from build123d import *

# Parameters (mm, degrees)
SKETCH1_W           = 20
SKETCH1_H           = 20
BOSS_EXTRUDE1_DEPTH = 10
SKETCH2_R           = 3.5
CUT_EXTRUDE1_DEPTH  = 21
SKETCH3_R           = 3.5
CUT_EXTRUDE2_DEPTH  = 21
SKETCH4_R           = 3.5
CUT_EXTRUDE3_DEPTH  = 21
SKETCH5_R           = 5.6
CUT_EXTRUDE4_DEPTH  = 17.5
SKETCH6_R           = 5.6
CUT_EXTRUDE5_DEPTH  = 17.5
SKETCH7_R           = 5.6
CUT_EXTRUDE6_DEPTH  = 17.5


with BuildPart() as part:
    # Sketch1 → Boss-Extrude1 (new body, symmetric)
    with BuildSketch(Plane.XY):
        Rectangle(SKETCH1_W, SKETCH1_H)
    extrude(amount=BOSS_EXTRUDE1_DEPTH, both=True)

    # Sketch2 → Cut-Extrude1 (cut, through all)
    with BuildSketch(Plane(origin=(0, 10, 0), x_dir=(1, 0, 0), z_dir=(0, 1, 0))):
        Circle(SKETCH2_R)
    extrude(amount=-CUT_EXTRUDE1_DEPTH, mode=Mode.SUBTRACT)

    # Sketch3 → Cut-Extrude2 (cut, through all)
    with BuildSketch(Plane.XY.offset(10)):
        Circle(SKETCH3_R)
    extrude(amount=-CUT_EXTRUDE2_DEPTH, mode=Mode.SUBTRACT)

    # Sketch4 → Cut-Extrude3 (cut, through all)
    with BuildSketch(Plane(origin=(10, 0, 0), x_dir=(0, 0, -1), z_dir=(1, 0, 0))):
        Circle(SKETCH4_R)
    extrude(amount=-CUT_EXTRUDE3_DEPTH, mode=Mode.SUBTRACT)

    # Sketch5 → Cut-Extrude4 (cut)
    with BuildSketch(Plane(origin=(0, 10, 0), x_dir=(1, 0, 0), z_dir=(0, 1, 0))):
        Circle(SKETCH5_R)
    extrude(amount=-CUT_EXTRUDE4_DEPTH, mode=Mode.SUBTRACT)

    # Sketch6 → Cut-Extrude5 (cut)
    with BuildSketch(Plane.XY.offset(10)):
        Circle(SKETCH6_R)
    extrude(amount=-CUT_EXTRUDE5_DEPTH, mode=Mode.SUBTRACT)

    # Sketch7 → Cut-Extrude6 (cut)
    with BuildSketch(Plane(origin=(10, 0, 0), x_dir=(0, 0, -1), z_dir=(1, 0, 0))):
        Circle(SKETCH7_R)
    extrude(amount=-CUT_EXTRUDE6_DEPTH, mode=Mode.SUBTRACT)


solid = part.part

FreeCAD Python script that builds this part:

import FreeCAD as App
import Part
import Sketcher

V = App.Vector

doc = App.newDocument("Part")
body = doc.addObject("PartDesign::Body", "Body")

# Sketch on XY plane
sketch1 = body.newObject("Sketcher::SketchObject", "Sketch")
sketch1.AttachmentSupport = (doc.getObject("XY_Plane"), [""])
sketch1.MapMode = "FlatFace"
sketch1.addGeometry([
    Part.LineSegment(V(-10, 10, 0), V(-10, -10, 0)),
    Part.LineSegment(V(-10, -10, 0), V(10, -10, 0)),
    Part.LineSegment(V(10, -10, 0), V(10, 10, 0)),
    Part.LineSegment(V(10, 10, 0), V(-10, 10, 0)),
], False)
sketch1.addConstraint([
    Sketcher.Constraint("Coincident", 0, 2, 1, 1),
    Sketcher.Constraint("Coincident", 1, 2, 2, 1),
    Sketcher.Constraint("Coincident", 2, 2, 3, 1),
    Sketcher.Constraint("Coincident", 3, 2, 0, 1),
    Sketcher.Constraint("Vertical", 0),
    Sketcher.Constraint("Horizontal", 1),
    Sketcher.Constraint("Vertical", 2),
    Sketcher.Constraint("Horizontal", 3),
    Sketcher.Constraint("Symmetric", 0, 2, 2, 2, -1, 1),
    Sketcher.Constraint("Equal", 3, 0),
    Sketcher.Constraint("DistanceX", 1, 1, 1, 2, 20.0),
])
pad1 = body.newObject("PartDesign::Pad", "Pad")
pad1.Profile = sketch1
pad1.Length = 20
pad1.Midplane = True

# Sketch on XZ plane
sketch2 = body.newObject("Sketcher::SketchObject", "Sketch001")
sketch2.AttachmentSupport = (doc.getObject("XZ_Plane"), [""])
sketch2.MapMode = "FlatFace"
sketch2.AttachmentOffset = App.Placement(V(0, 0, -10), App.Rotation())
sketch2.addGeometry(Part.Circle(V(0, 0, 0), V(0, 0, 1), 3.5), False)
sketch2.addConstraint([
    Sketcher.Constraint("Coincident", 0, 3, -1, 1),
    Sketcher.Constraint("Diameter", 0, 7.0),
])
pocket1 = body.newObject("PartDesign::Pocket", "Pocket")
pocket1.Profile = sketch2
pocket1.Type = "ThroughAll"
pocket1.Reversed = True

# Sketch on XY plane
sketch3 = body.newObject("Sketcher::SketchObject", "Sketch002")
sketch3.AttachmentSupport = (doc.getObject("XY_Plane"), [""])
sketch3.MapMode = "FlatFace"
sketch3.AttachmentOffset = App.Placement(V(0, 0, 10), App.Rotation())
sketch3.addGeometry(Part.Circle(V(0, 0, 0), V(0, 0, 1), 3.5), False)
sketch3.addConstraint([
    Sketcher.Constraint("Coincident", 0, 3, -1, 1),
    Sketcher.Constraint("Diameter", 0, 7.0),
])
pocket2 = body.newObject("PartDesign::Pocket", "Pocket001")
pocket2.Profile = sketch3
pocket2.Type = "ThroughAll"

# Sketch on YZ plane
sketch4 = body.newObject("Sketcher::SketchObject", "Sketch003")
sketch4.AttachmentSupport = (doc.getObject("YZ_Plane"), [""])
sketch4.MapMode = "FlatFace"
sketch4.AttachmentOffset = App.Placement(V(0, 0, 10), App.Rotation())
sketch4.addGeometry(Part.Circle(V(0, 0, 0), V(0, 0, 1), 3.5), False)
sketch4.addConstraint([
    Sketcher.Constraint("Coincident", 0, 3, -1, 1),
    Sketcher.Constraint("Diameter", 0, 7.0),
])
pocket3 = body.newObject("PartDesign::Pocket", "Pocket002")
pocket3.Profile = sketch4
pocket3.Type = "ThroughAll"

# Sketch on XZ plane
sketch5 = body.newObject("Sketcher::SketchObject", "Sketch004")
sketch5.AttachmentSupport = (doc.getObject("XZ_Plane"), [""])
sketch5.MapMode = "FlatFace"
sketch5.AttachmentOffset = App.Placement(V(0, 0, -10), App.Rotation())
sketch5.addGeometry(Part.Circle(V(0, 0, 0), V(0, 0, 1), 6), False)
sketch5.addConstraint([
    Sketcher.Constraint("Coincident", 0, 3, -1, 1),
    Sketcher.Constraint("Diameter", 0, 11.2),
])
pocket4 = body.newObject("PartDesign::Pocket", "Pocket003")
pocket4.Profile = sketch5
pocket4.Length = 17.5
pocket4.Reversed = True

# Sketch on XY plane
sketch6 = body.newObject("Sketcher::SketchObject", "Sketch005")
sketch6.AttachmentSupport = (doc.getObject("XY_Plane"), [""])
sketch6.MapMode = "FlatFace"
sketch6.AttachmentOffset = App.Placement(V(0, 0, 10), App.Rotation())
sketch6.addGeometry(Part.Circle(V(0, 0, 0), V(0, 0, 1), 6), False)
sketch6.addConstraint([
    Sketcher.Constraint("Coincident", 0, 3, -1, 1),
    Sketcher.Constraint("Diameter", 0, 11.2),
])
pocket5 = body.newObject("PartDesign::Pocket", "Pocket004")
pocket5.Profile = sketch6
pocket5.Length = 17.5

# Sketch on YZ plane
sketch7 = body.newObject("Sketcher::SketchObject", "Sketch006")
sketch7.AttachmentSupport = (doc.getObject("YZ_Plane"), [""])
sketch7.MapMode = "FlatFace"
sketch7.AttachmentOffset = App.Placement(V(0, 0, 10), App.Rotation())
sketch7.addGeometry(Part.Circle(V(0, 0, 0), V(0, 0, 1), 6), False)
sketch7.addConstraint([
    Sketcher.Constraint("Coincident", 0, 3, -1, 1),
    Sketcher.Constraint("Diameter", 0, 11.2),
])
pocket6 = body.newObject("PartDesign::Pocket", "Pocket005")
pocket6.Profile = sketch7
pocket6.Length = 17.5

doc.recompute()
